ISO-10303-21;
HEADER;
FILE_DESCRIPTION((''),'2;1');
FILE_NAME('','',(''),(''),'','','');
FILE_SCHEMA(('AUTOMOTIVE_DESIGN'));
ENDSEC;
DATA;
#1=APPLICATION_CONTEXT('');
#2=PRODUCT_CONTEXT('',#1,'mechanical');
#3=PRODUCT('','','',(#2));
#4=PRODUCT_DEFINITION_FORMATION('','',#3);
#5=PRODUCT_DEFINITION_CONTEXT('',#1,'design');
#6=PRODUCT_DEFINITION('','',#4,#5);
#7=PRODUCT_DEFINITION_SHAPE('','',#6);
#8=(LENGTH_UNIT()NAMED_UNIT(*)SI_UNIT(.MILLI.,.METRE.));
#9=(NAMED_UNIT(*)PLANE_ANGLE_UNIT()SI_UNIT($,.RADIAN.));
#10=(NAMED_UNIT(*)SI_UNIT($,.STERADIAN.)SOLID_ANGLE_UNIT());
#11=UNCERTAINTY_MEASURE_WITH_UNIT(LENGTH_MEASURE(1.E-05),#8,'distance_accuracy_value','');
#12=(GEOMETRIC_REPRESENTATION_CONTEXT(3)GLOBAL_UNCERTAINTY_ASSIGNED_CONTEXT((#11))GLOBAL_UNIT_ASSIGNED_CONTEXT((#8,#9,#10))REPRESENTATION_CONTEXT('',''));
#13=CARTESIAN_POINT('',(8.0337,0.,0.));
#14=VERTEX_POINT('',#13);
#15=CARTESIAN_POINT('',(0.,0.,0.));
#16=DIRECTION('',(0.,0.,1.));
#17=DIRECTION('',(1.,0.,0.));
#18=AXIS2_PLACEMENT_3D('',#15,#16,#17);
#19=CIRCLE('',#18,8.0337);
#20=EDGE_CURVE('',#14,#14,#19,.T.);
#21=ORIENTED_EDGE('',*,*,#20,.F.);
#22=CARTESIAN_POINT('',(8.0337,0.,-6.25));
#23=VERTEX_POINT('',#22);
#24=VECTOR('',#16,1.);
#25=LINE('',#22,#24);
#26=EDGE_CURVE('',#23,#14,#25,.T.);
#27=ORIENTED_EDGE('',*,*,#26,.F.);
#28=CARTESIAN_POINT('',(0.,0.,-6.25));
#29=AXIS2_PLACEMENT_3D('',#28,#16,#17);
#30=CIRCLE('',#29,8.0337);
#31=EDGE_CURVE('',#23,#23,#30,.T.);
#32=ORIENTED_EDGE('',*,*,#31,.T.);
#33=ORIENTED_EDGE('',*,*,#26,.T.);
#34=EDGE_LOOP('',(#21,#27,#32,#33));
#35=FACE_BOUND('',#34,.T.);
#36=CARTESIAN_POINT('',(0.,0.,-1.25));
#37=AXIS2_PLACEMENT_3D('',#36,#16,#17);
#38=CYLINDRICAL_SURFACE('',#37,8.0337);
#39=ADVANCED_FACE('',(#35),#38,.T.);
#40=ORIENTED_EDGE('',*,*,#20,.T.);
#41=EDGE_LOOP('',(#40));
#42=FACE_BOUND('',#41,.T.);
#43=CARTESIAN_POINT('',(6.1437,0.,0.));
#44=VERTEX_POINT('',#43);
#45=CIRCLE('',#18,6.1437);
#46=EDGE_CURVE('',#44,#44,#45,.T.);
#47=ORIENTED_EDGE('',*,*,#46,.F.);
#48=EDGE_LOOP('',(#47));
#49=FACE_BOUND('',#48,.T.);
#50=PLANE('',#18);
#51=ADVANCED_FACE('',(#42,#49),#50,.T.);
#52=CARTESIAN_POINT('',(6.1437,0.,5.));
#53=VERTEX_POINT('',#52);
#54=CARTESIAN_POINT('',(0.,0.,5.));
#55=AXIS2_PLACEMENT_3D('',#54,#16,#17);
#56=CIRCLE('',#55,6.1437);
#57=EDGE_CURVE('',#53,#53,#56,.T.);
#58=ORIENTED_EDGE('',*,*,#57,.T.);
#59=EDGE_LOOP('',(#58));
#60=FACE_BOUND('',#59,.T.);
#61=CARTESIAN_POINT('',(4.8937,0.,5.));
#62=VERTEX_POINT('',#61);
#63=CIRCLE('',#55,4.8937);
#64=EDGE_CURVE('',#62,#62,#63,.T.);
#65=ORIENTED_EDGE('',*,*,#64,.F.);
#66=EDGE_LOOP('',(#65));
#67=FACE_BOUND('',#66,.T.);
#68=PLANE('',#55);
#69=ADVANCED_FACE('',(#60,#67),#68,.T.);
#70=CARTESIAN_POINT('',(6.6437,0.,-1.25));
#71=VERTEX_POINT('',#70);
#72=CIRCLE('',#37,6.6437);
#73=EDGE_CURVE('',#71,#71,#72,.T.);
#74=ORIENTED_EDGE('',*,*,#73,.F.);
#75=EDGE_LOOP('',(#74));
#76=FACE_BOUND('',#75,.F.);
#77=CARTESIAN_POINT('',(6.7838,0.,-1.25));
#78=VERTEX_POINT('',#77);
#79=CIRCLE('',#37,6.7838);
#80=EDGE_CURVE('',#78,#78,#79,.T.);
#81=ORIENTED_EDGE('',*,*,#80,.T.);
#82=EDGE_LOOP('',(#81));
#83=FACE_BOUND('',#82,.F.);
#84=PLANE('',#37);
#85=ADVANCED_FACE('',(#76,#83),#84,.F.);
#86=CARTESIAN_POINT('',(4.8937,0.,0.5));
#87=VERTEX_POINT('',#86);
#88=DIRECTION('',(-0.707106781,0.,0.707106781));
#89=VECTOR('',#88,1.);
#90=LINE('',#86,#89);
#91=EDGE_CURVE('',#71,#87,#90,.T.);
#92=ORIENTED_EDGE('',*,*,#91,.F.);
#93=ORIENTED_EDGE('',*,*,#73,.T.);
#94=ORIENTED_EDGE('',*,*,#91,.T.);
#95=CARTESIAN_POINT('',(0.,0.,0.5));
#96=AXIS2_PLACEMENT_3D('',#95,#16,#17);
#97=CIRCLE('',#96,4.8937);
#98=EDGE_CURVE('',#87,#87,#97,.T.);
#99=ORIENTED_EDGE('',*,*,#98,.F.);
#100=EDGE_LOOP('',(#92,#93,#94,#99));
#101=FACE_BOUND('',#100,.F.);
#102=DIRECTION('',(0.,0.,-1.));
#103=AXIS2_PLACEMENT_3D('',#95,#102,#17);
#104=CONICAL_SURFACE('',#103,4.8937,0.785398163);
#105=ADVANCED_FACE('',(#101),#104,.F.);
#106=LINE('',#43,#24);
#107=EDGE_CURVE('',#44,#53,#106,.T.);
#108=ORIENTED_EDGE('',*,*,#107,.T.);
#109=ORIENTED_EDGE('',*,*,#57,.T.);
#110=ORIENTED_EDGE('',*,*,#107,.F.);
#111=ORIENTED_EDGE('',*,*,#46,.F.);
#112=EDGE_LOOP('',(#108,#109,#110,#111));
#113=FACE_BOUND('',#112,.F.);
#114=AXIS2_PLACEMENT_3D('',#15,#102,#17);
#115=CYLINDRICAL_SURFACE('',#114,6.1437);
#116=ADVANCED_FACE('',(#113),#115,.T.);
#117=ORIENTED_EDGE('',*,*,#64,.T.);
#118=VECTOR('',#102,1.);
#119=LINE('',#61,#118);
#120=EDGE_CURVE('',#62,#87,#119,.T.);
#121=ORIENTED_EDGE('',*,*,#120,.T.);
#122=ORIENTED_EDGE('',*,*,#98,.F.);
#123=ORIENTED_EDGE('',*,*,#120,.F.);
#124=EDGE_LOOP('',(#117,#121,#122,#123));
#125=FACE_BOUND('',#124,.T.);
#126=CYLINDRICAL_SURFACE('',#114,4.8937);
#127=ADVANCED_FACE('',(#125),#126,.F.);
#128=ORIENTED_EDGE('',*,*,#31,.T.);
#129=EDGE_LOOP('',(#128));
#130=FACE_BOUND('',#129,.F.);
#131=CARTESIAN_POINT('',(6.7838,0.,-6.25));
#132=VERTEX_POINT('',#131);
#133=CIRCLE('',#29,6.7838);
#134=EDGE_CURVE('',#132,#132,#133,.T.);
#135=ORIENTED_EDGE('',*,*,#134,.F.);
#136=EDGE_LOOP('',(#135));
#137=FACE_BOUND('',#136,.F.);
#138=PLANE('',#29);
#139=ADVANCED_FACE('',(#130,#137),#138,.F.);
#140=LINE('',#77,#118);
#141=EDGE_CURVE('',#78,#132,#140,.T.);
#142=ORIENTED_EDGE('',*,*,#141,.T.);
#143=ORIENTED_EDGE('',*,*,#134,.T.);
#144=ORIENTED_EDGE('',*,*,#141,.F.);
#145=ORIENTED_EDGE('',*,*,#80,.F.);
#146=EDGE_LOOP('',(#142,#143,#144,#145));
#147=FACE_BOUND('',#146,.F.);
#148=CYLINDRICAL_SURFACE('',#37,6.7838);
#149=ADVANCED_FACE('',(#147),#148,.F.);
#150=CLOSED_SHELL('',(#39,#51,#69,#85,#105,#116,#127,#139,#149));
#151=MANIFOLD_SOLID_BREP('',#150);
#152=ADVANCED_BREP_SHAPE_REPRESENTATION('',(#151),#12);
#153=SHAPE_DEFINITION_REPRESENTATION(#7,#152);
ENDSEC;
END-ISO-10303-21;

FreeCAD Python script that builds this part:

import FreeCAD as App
import Part
import Sketcher

V = App.Vector
Q = App.Units.Quantity


def edges_at(feature, points):
    """Names of the edges that pass closest to the given points."""
    edges = feature.Shape.Edges
    near = lambda p: min(range(len(edges)), key=lambda i: edges[i].distToShape(Part.Vertex(*p))[0])
    return sorted({f"Edge{near(p) + 1}" for p in points})

doc = App.newDocument("Part")
body = doc.addObject("PartDesign::Body", "Body")

# Sketch on XY plane
sketch1 = body.newObject("Sketcher::SketchObject", "Sketch")
sketch1.AttachmentSupport = (doc.getObject("XY_Plane"), [""])
sketch1.MapMode = "FlatFace"
sketch1.addGeometry(Part.Circle(V(0, 0, 0), V(0, 0, 1), 6.1), False)
sketch1.addGeometry(Part.Circle(V(0, 0, 0), V(0, 0, 1), 4.9), False)
sketch1.addConstraint(Sketcher.Constraint("Coincident", 0, 3, -1, 1))
sketch1.addConstraint(Sketcher.Constraint("Coincident", 1, 3, -1, 1))
sketch1.addConstraint(Sketcher.Constraint("Diameter", 0, Q("12.2874 mm")))
sketch1.addConstraint(Sketcher.Constraint("Diameter", 1, Q("9.7874 mm")))
pad1 = body.newObject("PartDesign::Pad", "Pad")
pad1.Profile = sketch1
pad1.Length = 5

# Sketch on XY plane
sketch2 = body.newObject("Sketcher::SketchObject", "Sketch001")
sketch2.AttachmentSupport = (doc.getObject("XY_Plane"), [""])
sketch2.MapMode = "FlatFace"
sketch2.addGeometry(Part.Circle(V(0, 0, 0), V(0, 0, 1), 8), False)
sketch2.addGeometry(Part.Circle(V(0, 0, 0), V(0, 0, 1), 4.9), False)
sketch2.addConstraint(Sketcher.Constraint("Coincident", 0, 3, -1, 1))
sketch2.addConstraint(Sketcher.Constraint("Coincident", 1, 3, -1, 1))
sketch2.addConstraint(Sketcher.Constraint("Diameter", 0, Q("16.0674 mm")))
sketch2.addConstraint(Sketcher.Constraint("Diameter", 1, Q("9.7874 mm")))
pad2 = body.newObject("PartDesign::Pad", "Pad001")
pad2.Profile = sketch2
pad2.Length = 1.25
pad2.Reversed = True

# Sketch on XY plane
sketch3 = body.newObject("Sketcher::SketchObject", "Sketch002")
sketch3.AttachmentSupport = (doc.getObject("XY_Plane"), [""])
sketch3.MapMode = "FlatFace"
sketch3.AttachmentOffset = App.Placement(V(0, 0, -1.25), App.Rotation())
sketch3.addGeometry(Part.Circle(V(0, 0, 0), V(0, 0, 1), 8), False)
sketch3.addGeometry(Part.Circle(V(0, 0, 0), V(0, 0, 1), 7), False)
sketch3.addConstraint(Sketcher.Constraint("Coincident", 0, 3, -1, 1))
sketch3.addConstraint(Sketcher.Constraint("Coincident", 1, 3, -1, 1))
sketch3.addConstraint(Sketcher.Constraint("Diameter", 1, Q("13.5676 mm")))
sketch3.addConstraint(Sketcher.Constraint("Diameter", 0, Q("16.0674 mm")))
pad3 = body.newObject("PartDesign::Pad", "Pad002")
pad3.Profile = sketch3
pad3.Length = 5
pad3.Reversed = True
doc.recompute()

chamfer = body.newObject("PartDesign::Chamfer", "Chamfer")
chamfer.Base = (pad3, edges_at(pad3, [(-4.894, 0, -1.25)]))
chamfer.Size = 1.75

doc.recompute()
